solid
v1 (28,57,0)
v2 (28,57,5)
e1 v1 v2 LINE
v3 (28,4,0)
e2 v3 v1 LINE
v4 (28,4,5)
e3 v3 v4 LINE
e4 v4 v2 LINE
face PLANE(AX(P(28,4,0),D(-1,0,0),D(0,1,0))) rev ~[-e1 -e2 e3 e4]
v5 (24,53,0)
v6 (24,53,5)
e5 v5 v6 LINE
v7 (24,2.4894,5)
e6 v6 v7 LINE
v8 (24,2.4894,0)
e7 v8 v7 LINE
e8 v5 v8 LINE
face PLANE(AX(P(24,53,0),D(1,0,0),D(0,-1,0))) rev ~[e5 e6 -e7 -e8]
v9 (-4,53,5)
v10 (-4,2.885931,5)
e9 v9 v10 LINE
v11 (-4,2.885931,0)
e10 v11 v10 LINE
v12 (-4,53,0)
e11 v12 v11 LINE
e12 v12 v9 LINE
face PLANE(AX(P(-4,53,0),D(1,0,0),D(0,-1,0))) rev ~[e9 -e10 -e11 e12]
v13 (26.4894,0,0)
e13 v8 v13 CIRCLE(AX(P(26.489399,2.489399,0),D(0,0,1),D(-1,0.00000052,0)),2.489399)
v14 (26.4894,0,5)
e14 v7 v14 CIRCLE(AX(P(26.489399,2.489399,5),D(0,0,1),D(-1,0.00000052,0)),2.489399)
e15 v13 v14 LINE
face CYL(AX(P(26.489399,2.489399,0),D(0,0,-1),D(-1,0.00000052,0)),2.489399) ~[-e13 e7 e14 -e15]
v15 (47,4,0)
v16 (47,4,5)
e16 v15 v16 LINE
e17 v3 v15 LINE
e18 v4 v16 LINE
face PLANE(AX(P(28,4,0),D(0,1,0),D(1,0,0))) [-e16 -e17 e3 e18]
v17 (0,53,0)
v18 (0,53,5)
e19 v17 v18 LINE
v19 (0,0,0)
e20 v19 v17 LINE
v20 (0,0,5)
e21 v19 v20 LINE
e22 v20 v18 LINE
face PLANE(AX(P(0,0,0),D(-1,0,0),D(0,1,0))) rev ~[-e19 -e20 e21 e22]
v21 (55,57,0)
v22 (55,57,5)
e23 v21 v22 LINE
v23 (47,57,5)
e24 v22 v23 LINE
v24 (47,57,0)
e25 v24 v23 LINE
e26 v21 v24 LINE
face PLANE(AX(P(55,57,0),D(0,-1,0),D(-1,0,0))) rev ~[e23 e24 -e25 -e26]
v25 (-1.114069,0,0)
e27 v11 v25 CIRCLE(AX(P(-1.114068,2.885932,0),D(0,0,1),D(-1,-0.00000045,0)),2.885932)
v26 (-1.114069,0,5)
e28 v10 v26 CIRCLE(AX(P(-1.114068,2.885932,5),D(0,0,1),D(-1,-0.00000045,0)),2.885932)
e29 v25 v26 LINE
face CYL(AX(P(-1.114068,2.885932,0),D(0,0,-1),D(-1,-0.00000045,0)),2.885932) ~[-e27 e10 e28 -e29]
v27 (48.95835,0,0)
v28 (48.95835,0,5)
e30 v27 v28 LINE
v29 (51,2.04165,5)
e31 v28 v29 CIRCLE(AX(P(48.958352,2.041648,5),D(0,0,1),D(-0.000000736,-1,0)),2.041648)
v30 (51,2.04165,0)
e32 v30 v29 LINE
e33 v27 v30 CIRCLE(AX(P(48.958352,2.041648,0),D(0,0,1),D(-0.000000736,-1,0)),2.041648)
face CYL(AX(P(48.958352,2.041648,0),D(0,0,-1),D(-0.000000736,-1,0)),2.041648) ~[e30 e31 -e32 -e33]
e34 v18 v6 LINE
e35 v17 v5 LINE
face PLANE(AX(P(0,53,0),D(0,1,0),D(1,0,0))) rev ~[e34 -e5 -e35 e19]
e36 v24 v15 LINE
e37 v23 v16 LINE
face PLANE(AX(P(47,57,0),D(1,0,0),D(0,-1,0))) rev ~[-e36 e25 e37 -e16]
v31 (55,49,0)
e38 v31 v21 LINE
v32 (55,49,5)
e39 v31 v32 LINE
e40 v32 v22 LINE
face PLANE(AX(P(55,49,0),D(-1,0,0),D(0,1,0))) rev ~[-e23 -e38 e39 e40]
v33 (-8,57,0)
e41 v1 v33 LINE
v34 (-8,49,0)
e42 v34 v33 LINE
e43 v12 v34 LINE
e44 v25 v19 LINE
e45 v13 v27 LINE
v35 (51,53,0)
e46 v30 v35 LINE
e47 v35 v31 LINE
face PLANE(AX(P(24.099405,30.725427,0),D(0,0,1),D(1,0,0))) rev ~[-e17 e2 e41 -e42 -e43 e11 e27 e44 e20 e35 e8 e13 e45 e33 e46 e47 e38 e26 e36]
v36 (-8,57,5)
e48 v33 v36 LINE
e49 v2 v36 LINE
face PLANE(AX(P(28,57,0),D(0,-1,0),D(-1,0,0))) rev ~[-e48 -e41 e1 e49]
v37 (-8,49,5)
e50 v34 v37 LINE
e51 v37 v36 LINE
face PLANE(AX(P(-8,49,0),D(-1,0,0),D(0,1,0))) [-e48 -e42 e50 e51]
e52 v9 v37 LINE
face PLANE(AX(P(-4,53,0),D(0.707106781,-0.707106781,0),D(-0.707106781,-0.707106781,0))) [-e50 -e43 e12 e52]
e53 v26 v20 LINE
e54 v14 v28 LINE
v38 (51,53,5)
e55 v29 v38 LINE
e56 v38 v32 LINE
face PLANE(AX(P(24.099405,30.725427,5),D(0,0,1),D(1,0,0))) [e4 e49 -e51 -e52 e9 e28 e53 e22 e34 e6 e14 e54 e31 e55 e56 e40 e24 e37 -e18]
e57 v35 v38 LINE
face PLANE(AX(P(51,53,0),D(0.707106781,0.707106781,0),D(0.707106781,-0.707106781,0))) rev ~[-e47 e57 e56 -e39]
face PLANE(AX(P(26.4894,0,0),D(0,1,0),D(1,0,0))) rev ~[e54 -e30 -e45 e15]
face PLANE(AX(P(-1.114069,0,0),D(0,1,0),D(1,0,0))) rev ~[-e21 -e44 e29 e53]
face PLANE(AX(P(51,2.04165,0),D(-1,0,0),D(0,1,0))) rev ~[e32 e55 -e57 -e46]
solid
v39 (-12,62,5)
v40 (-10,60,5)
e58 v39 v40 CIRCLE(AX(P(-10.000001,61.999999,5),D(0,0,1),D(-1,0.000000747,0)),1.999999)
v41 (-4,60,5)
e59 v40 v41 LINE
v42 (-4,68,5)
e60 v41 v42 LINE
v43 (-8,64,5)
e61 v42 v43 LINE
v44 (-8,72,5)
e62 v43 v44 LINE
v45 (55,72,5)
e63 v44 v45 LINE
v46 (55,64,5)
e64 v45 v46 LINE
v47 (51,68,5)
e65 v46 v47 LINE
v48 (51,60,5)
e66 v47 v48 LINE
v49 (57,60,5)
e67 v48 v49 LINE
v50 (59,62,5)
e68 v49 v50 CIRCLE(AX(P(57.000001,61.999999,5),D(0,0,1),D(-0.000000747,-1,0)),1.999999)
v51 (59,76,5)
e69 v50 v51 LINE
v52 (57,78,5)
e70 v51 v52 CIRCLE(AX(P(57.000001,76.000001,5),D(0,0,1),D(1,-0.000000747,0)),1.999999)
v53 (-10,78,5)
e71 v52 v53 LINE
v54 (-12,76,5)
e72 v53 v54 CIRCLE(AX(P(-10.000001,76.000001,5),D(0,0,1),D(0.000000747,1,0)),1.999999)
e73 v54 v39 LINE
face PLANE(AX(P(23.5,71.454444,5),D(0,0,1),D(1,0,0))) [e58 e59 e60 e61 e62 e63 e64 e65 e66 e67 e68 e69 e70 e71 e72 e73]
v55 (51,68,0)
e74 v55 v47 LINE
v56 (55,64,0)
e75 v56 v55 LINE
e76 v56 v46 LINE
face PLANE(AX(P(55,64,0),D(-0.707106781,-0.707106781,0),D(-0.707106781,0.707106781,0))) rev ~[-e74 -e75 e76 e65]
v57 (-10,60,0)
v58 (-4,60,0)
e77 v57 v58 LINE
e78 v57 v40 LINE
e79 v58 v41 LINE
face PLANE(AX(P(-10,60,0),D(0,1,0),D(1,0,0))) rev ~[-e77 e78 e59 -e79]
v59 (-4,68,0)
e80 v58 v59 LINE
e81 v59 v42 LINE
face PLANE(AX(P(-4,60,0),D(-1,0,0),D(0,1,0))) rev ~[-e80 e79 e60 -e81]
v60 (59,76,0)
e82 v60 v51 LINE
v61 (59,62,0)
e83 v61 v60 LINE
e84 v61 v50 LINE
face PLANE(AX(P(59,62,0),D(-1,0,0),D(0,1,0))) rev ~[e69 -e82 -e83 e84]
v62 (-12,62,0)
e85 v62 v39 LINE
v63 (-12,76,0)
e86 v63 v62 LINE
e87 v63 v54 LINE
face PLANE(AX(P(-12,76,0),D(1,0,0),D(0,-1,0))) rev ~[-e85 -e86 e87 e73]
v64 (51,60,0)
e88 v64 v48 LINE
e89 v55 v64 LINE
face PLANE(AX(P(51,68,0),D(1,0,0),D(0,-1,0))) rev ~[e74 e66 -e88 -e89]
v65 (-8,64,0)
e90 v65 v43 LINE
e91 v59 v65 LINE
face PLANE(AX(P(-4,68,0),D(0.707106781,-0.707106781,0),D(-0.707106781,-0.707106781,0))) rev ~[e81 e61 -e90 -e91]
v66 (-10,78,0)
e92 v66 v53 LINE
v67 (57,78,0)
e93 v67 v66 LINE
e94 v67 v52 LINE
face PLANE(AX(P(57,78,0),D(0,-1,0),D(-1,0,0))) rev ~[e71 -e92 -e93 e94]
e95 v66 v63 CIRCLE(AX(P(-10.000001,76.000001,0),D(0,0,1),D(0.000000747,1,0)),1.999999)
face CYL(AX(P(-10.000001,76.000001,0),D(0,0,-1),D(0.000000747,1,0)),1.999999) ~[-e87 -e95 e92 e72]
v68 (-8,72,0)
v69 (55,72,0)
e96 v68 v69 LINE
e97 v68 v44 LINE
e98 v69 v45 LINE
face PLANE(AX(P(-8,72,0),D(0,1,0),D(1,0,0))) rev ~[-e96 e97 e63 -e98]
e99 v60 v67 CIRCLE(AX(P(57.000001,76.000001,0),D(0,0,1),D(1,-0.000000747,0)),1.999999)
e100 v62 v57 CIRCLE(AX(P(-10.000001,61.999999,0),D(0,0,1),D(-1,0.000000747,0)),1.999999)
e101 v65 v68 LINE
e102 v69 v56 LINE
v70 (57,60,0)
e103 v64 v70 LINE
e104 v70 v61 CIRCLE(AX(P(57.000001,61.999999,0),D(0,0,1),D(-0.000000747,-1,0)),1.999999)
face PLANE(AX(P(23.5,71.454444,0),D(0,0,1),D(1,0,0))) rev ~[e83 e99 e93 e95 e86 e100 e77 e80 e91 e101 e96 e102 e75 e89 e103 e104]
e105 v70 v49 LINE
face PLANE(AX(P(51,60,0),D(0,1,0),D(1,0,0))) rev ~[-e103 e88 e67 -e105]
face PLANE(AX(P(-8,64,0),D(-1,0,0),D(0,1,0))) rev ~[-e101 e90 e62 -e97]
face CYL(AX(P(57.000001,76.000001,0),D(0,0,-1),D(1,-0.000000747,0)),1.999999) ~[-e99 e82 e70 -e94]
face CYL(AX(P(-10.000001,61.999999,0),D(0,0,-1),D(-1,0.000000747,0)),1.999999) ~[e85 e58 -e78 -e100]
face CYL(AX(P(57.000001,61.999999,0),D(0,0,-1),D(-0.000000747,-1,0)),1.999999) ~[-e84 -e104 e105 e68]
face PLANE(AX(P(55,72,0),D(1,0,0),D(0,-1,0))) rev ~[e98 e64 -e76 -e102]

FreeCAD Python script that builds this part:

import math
import FreeCAD as App
import Part
import Sketcher
Q = App.Units.Quantity

doc = App.newDocument("Part")
params = doc.addObject("Spreadsheet::Sheet", "Params")
for row, (alias, value) in enumerate([
    ("sketch1_width", "24 mm"),
    ("sketch1_width2", "8 mm"),
    ("sketch1_width3", "19 mm"),
    ("sketch1_width4", "36 mm"),
    ("sketch1_height", "53 mm"),
    ("pad1_length", "5 mm"),
    ("sketch2_radius", "1.999999 mm"),
    ("sketch2_width", "63 mm"),
    ("sketch2_width2", "6 mm"),
    ("sketch2_width3", "67 mm"),
    ("sketch2_height", "8 mm"),
    ("pad2_length", "5 mm"),
], start=1):
    params.set(f"A{row}", alias)
    params.set(f"B{row}", "=" + value)
    params.setAlias(f"B{row}", alias)

body = doc.addObject("PartDesign::Body", "Body")

sketch1 = body.newObject("Sketcher::SketchObject", "Sketch")
sketch1.AttachmentSupport = (doc.getObject("XY_Plane"), [""])
sketch1.MapMode = "FlatFace"
sketch1.addGeometry([
    Part.LineSegment(App.Vector(0, 0, 0), App.Vector(0, 53, 0)),
    Part.LineSegment(App.Vector(0, 53, 0), App.Vector(24, 53, 0)),
    Part.LineSegment(App.Vector(24, 53, 0), App.Vector(24, 2.5, 0)),
    Part.ArcOfCircle(Part.Circle(App.Vector(26.5, 2.5, 0), App.Vector(0, 0, 1), 2.5), math.radians(180), math.radians(270)),
    Part.LineSegment(App.Vector(26.5, 0, 0), App.Vector(49, 0, 0)),
    Part.ArcOfCircle(Part.Circle(App.Vector(49, 2, 0), App.Vector(0, 0, 1), 2), math.radians(-90), math.radians(0)),
    Part.LineSegment(App.Vector(51, 2, 0), App.Vector(51, 53, 0)),
    Part.LineSegment(App.Vector(51, 53, 0), App.Vector(55, 49, 0)),
    Part.LineSegment(App.Vector(55, 49, 0), App.Vector(55, 57, 0)),
    Part.LineSegment(App.Vector(55, 57, 0), App.Vector(47, 57, 0)),
    Part.LineSegment(App.Vector(47, 57, 0), App.Vector(47, 4, 0)),
    Part.LineSegment(App.Vector(47, 4, 0), App.Vector(28, 4, 0)),
    Part.LineSegment(App.Vector(28, 4, 0), App.Vector(28, 57, 0)),
    Part.LineSegment(App.Vector(28, 57, 0), App.Vector(-8, 57, 0)),
    Part.LineSegment(App.Vector(-8, 57, 0), App.Vector(-8, 49, 0)),
    Part.LineSegment(App.Vector(-8, 49, 0), App.Vector(-4, 53, 0)),
    Part.LineSegment(App.Vector(-4, 53, 0), App.Vector(-4, 2.9, 0)),
    Part.ArcOfCircle(Part.Circle(App.Vector(-1.1, 2.9, 0), App.Vector(0, 0, 1), 2.9), math.radians(-180), math.radians(-90)),
    Part.LineSegment(App.Vector(-1.1, 0, 0), App.Vector(0, 0, 0)),
], False)
sketch1.addConstraint([
    Sketcher.Constraint("Coincident", 0, 2, 1, 1),
    Sketcher.Constraint("Coincident", 1, 2, 2, 1),
    Sketcher.Constraint("Tangent", 2, 2, 3, 1),
    Sketcher.Constraint("Tangent", 3, 2, 4, 1),
    Sketcher.Constraint("Tangent", 4, 2, 5, 1),
    Sketcher.Constraint("Tangent", 5, 2, 6, 1),
    Sketcher.Constraint("Coincident", 6, 2, 7, 1),
    Sketcher.Constraint("Coincident", 7, 2, 8, 1),
    Sketcher.Constraint("Coincident", 8, 2, 9, 1),
    Sketcher.Constraint("Coincident", 9, 2, 10, 1),
    Sketcher.Constraint("Coincident", 10, 2, 11, 1),
    Sketcher.Constraint("Coincident", 11, 2, 12, 1),
    Sketcher.Constraint("Coincident", 12, 2, 13, 1),
    Sketcher.Constraint("Coincident", 13, 2, 14, 1),
    Sketcher.Constraint("Coincident", 14, 2, 15, 1),
    Sketcher.Constraint("Coincident", 15, 2, 16, 1),
    Sketcher.Constraint("Tangent", 16, 2, 17, 1),
    Sketcher.Constraint("Tangent", 17, 2, 18, 1),
    Sketcher.Constraint("Coincident", 18, 2, 0, 1),
    Sketcher.Constraint("Vertical", 0),
    Sketcher.Constraint("Horizontal", 1),
    Sketcher.Constraint("Vertical", 2),
    Sketcher.Constraint("Horizontal", 4),
    Sketcher.Constraint("Vertical", 6),
    Sketcher.Constraint("Vertical", 8),
    Sketcher.Constraint("Horizontal", 9),
    Sketcher.Constraint("Vertical", 10),
    Sketcher.Constraint("Horizontal", 11),
    Sketcher.Constraint("Vertical", 12),
    Sketcher.Constraint("Horizontal", 13),
    Sketcher.Constraint("Vertical", 14),
    Sketcher.Constraint("Vertical", 16),
    Sketcher.Constraint("Horizontal", 18),
    Sketcher.Constraint("Coincident", 18, 2, -1, 1),
    Sketcher.Constraint("PointOnObject", 3, 2, -1),
    Sketcher.Constraint("Perpendicular", 7, 15),
    Sketcher.Constraint("Horizontal", 1, 2, 6, 2),
    Sketcher.Constraint("Horizontal", 9, 2, 12, 2),
    Sketcher.Constraint("Horizontal", 7, 2, 14, 2),
    Sketcher.Constraint("Horizontal", 6, 2, 15, 2),
    Sketcher.Constraint("Equal", 9, 8),
    Sketcher.Constraint("Equal", 0, 10),
    Sketcher.Constraint("Equal", 7, 15),
    Sketcher.Constraint("DistanceX", 1, 1, 1, 2, Q("24 mm")),
    Sketcher.Constraint("DistanceX", 9, 2, 9, 1, Q("8 mm")),
    Sketcher.Constraint("DistanceX", 11, 2, 11, 1, Q("19 mm")),
    Sketcher.Constraint("DistanceX", 13, 2, 13, 1, Q("36 mm")),
    Sketcher.Constraint("DistanceY", 0, 1, 0, 2, Q("53 mm")),
    Sketcher.Constraint("DistanceX", -1, 1, 5, 2, Q("51 mm")),
    Sketcher.Constraint("DistanceX", -1, 1, 7, 2, Q("55 mm")),
    Sketcher.Constraint("Radius", 3, Q("2.489399 mm")),
    Sketcher.Constraint("Radius", 5, Q("2.041648 mm")),
    Sketcher.Constraint("Radius", 17, Q("2.885932 mm")),
])
sketch1.setExpression("Constraints[43]", "Params.sketch1_width")
sketch1.setExpression("Constraints[44]", "Params.sketch1_width2")
sketch1.setExpression("Constraints[45]", "Params.sketch1_width3")
sketch1.setExpression("Constraints[46]", "Params.sketch1_width4")
sketch1.setExpression("Constraints[47]", "Params.sketch1_height")
pad1 = body.newObject("PartDesign::Pad", "Pad")
pad1.Profile = sketch1
pad1.setExpression("Length", "Params.pad1_length")
body2 = doc.addObject("PartDesign::Body", "Body001")

sketch2 = body2.newObject("Sketcher::SketchObject", "Sketch001")
sketch2.AttachmentSupport = (doc.getObject("XY_Plane001"), [""])
sketch2.MapMode = "FlatFace"
sketch2.addGeometry([
    Part.LineSegment(App.Vector(-8, 72, 0), App.Vector(55, 72, 0)),
    Part.LineSegment(App.Vector(55, 72, 0), App.Vector(55, 64, 0)),
    Part.LineSegment(App.Vector(55, 64, 0), App.Vector(51, 68, 0)),
    Part.LineSegment(App.Vector(51, 68, 0), App.Vector(51, 60, 0)),
    Part.LineSegment(App.Vector(51, 60, 0), App.Vector(57, 60, 0)),
    Part.ArcOfCircle(Part.Circle(App.Vector(57, 62, 0), App.Vector(0, 0, 1), 2), math.radians(-90), math.radians(0)),
    Part.LineSegment(App.Vector(59, 62, 0), App.Vector(59, 76, 0)),
    Part.ArcOfCircle(Part.Circle(App.Vector(57, 76, 0), App.Vector(0, 0, 1), 2), math.radians(0), math.radians(90)),
    Part.LineSegment(App.Vector(57, 78, 0), App.Vector(-10, 78, 0)),
    Part.ArcOfCircle(Part.Circle(App.Vector(-10, 76, 0), App.Vector(0, 0, 1), 2), math.radians(90), math.radians(180)),
    Part.LineSegment(App.Vector(-12, 76, 0), App.Vector(-12, 62, 0)),
    Part.ArcOfCircle(Part.Circle(App.Vector(-10, 62, 0), App.Vector(0, 0, 1), 2), math.radians(180), math.radians(270)),
    Part.LineSegment(App.Vector(-10, 60, 0), App.Vector(-4, 60, 0)),
    Part.LineSegment(App.Vector(-4, 60, 0), App.Vector(-4, 68, 0)),
    Part.LineSegment(App.Vector(-4, 68, 0), App.Vector(-8, 64, 0)),
    Part.LineSegment(App.Vector(-8, 64, 0), App.Vector(-8, 72, 0)),
], False)
sketch2.addConstraint([
    Sketcher.Constraint("Coincident", 0, 2, 1, 1),
    Sketcher.Constraint("Coincident", 1, 2, 2, 1),
    Sketcher.Constraint("Coincident", 2, 2, 3, 1),
    Sketcher.Constraint("Coincident", 3, 2, 4, 1),
    Sketcher.Constraint("Tangent", 4, 2, 5, 1),
    Sketcher.Constraint("Tangent", 5, 2, 6, 1),
    Sketcher.Constraint("Tangent", 6, 2, 7, 1),
    Sketcher.Constraint("Tangent", 7, 2, 8, 1),
    Sketcher.Constraint("Tangent", 8, 2, 9, 1),
    Sketcher.Constraint("Tangent", 9, 2, 10, 1),
    Sketcher.Constraint("Tangent", 10, 2, 11, 1),
    Sketcher.Constraint("Tangent", 11, 2, 12, 1),
    Sketcher.Constraint("Coincident", 12, 2, 13, 1),
    Sketcher.Constraint("Coincident", 13, 2, 14, 1),
    Sketcher.Constraint("Coincident", 14, 2, 15, 1),
    Sketcher.Constraint("Coincident", 15, 2, 0, 1),
    Sketcher.Constraint("Horizontal", 0),
    Sketcher.Constraint("Vertical", 1),
    Sketcher.Constraint("Vertical", 3),
    Sketcher.Constraint("Horizontal", 4),
    Sketcher.Constraint("Vertical", 6),
    Sketcher.Constraint("Horizontal", 8),
    Sketcher.Constraint("Vertical", 10),
    Sketcher.Constraint("Horizontal", 12),
    Sketcher.Constraint("Vertical", 13),
    Sketcher.Constraint("Vertical", 15),
    Sketcher.Constraint("Equal", 5, 7),
    Sketcher.Constraint("Equal", 7, 9),
    Sketcher.Constraint("Equal", 9, 11),
    Sketcher.Constraint("Perpendicular", 2, 14),
    Sketcher.Constraint("Horizontal", 5, 3, 11, 3),
    Sketcher.Constraint("Horizontal", 2, 2, 13, 2),
    Sketcher.Constraint("Horizontal", 1, 2, 14, 2),
    Sketcher.Constraint("Equal", 4, 12),
    Sketcher.Constraint("Equal", 1, 3),
    Sketcher.Constraint("Equal", 2, 14),
    Sketcher.Constraint("Radius", 5, Q("1.999999 mm")),
    Sketcher.Constraint("DistanceX", 0, 1, 0, 2, Q("63 mm")),
    Sketcher.Constraint("DistanceX", 4, 1, 4, 2, Q("6 mm")),
    Sketcher.Constraint("DistanceX", 8, 2, 8, 1, Q("67 mm")),
    Sketcher.Constraint("DistanceY", 1, 2, 1, 1, Q("8 mm")),
    Sketcher.Constraint("DistanceY", 6, 1, 6, 2, Q("14 mm")),
    Sketcher.Constraint("DistanceX", -1, 1, 5, 3, Q("57.000001 mm")),
    Sketcher.Constraint("DistanceY", -1, 1, 5, 3, Q("61.999999 mm")),
])
sketch2.setExpression("Constraints[36]", "Params.sketch2_radius")
sketch2.setExpression("Constraints[37]", "Params.sketch2_width")
sketch2.setExpression("Constraints[38]", "Params.sketch2_width2")
sketch2.setExpression("Constraints[39]", "Params.sketch2_width3")
sketch2.setExpression("Constraints[40]", "Params.sketch2_height")
pad2 = body2.newObject("PartDesign::Pad", "Pad001")
pad2.Profile = sketch2
pad2.setExpression("Length", "Params.pad2_length")

doc.recompute()
